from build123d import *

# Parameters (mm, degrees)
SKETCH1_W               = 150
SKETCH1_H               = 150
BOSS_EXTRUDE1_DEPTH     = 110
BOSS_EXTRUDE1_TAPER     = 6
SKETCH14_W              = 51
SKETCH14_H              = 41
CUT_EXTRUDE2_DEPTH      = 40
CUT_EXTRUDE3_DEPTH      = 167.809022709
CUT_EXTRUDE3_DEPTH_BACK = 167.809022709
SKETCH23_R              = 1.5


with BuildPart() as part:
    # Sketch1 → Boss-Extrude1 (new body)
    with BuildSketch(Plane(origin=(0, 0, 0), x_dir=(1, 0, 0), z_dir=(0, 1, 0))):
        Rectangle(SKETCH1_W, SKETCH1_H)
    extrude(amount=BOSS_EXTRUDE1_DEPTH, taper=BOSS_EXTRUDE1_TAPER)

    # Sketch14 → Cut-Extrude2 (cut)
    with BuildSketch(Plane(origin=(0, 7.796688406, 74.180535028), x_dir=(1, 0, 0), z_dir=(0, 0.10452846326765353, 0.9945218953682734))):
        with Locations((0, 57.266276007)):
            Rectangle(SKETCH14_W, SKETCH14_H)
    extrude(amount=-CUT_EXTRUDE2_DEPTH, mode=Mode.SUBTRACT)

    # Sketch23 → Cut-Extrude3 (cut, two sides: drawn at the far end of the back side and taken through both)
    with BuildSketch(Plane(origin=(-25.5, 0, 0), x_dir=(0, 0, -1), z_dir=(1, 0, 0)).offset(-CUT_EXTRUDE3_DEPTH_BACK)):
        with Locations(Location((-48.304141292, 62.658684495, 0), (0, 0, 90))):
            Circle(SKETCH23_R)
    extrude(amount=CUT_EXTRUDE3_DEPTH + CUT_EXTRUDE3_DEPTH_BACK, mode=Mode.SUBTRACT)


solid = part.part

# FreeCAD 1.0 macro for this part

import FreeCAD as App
import Part
import Sketcher
from FreeCAD import Vector
Q = App.Units.Quantity

doc = App.newDocument("Part")
body = doc.addObject("PartDesign::Body", "Body")

# Sketch on XZ plane
sketch1 = body.newObject("Sketcher::SketchObject", "Sketch")
sketch1.AttachmentSupport = (doc.getObject("XZ_Plane"), [""])
sketch1.MapMode = "FlatFace"
sketch1.addGeometry([
    Part.LineSegment(Vector(-75, -75, 0), Vector(-75, 75, 0)),
    Part.LineSegment(Vector(-75, 75, 0), Vector(75, 75, 0)),
    Part.LineSegment(Vector(75, 75, 0), Vector(75, -75, 0)),
    Part.LineSegment(Vector(75, -75, 0), Vector(-75, -75, 0)),
], False)
sketch1.addConstraint([
    Sketcher.Constraint("Coincident", 0, 2, 1, 1),
    Sketcher.Constraint("Coincident", 1, 2, 2, 1),
    Sketcher.Constraint("Coincident", 2, 2, 3, 1),
    Sketcher.Constraint("Coincident", 3, 2, 0, 1),
    Sketcher.Constraint("Vertical", 0),
    Sketcher.Constraint("Horizontal", 1),
    Sketcher.Constraint("Vertical", 2),
    Sketcher.Constraint("Horizontal", 3),
    Sketcher.Constraint("Symmetric", 0, 2, 2, 2, -1, 1),
    Sketcher.Constraint("Equal", 3, 0),
    Sketcher.Constraint("DistanceX", 1, 1, 1, 2, Q("150 mm")),
])
pad1 = body.newObject("PartDesign::Pad", "Pad")
pad1.Profile = sketch1
pad1.Length = 110
pad1.Reversed = True
pad1.TaperAngle = -6

# Sketch on an angled plane
sketch2 = body.newObject("Sketcher::SketchObject", "Sketch001")
sketch2.Placement = App.Placement(Vector(0, 7.796688, 74.180535), App.Rotation(Vector(1, 0, 0), Vector(0, 0.994521895, -0.104528463), Vector(0, 0.104528463, 0.994521895), "ZXY"))
sketch2.addGeometry([
    Part.LineSegment(Vector(-26, 78, 0), Vector(-26, 37, 0)),
    Part.LineSegment(Vector(-26, 37, 0), Vector(26, 37, 0)),
    Part.LineSegment(Vector(26, 37, 0), Vector(26, 78, 0)),
    Part.LineSegment(Vector(26, 78, 0), Vector(-26, 78, 0)),
], False)
sketch2.addConstraint([
    Sketcher.Constraint("Coincident", 0, 2, 1, 1),
    Sketcher.Constraint("Coincident", 1, 2, 2, 1),
    Sketcher.Constraint("Coincident", 2, 2, 3, 1),
    Sketcher.Constraint("Coincident", 3, 2, 0, 1),
    Sketcher.Constraint("Vertical", 0),
    Sketcher.Constraint("Horizontal", 1),
    Sketcher.Constraint("Vertical", 2),
    Sketcher.Constraint("Horizontal", 3),
    Sketcher.Constraint("DistanceX", 1, 1, 1, 2, Q("51 mm")),
    Sketcher.Constraint("DistanceY", 0, 2, 0, 1, Q("41 mm")),
    Sketcher.Constraint("DistanceX", 0, 2, -1, 1, Q("25.5 mm")),
    Sketcher.Constraint("DistanceY", -1, 1, 0, 2, Q("36.766276 mm")),
])
pocket1 = body.newObject("PartDesign::Pocket", "Pocket")
pocket1.Profile = sketch2
pocket1.Length = 40

# Sketch on YZ plane
sketch3 = body.newObject("Sketcher::SketchObject", "Sketch002")
sketch3.AttachmentSupport = (doc.getObject("YZ_Plane"), [""])
sketch3.MapMode = "FlatFace"
sketch3.AttachmentOffset = App.Placement(Vector(0, 0, -25.5), App.Rotation())
sketch3.addGeometry(Part.Circle(Vector(62.7, 48.3, 0), Vector(0, 0, 1), 1.5), False)
sketch3.addConstraint([
    Sketcher.Constraint("Diameter", 0, Q("3 mm")),
    Sketcher.Constraint("DistanceY", -1, 1, 0, 3, Q("48.304141 mm")),
    Sketcher.Constraint("DistanceX", -1, 1, 0, 3, Q("62.658684 mm")),
])
pocket2 = body.newObject("PartDesign::Pocket", "Pocket001")
pocket2.Profile = sketch3
pocket2.Type = "ThroughAll"
pocket2.Midplane = True

doc.recompute()
